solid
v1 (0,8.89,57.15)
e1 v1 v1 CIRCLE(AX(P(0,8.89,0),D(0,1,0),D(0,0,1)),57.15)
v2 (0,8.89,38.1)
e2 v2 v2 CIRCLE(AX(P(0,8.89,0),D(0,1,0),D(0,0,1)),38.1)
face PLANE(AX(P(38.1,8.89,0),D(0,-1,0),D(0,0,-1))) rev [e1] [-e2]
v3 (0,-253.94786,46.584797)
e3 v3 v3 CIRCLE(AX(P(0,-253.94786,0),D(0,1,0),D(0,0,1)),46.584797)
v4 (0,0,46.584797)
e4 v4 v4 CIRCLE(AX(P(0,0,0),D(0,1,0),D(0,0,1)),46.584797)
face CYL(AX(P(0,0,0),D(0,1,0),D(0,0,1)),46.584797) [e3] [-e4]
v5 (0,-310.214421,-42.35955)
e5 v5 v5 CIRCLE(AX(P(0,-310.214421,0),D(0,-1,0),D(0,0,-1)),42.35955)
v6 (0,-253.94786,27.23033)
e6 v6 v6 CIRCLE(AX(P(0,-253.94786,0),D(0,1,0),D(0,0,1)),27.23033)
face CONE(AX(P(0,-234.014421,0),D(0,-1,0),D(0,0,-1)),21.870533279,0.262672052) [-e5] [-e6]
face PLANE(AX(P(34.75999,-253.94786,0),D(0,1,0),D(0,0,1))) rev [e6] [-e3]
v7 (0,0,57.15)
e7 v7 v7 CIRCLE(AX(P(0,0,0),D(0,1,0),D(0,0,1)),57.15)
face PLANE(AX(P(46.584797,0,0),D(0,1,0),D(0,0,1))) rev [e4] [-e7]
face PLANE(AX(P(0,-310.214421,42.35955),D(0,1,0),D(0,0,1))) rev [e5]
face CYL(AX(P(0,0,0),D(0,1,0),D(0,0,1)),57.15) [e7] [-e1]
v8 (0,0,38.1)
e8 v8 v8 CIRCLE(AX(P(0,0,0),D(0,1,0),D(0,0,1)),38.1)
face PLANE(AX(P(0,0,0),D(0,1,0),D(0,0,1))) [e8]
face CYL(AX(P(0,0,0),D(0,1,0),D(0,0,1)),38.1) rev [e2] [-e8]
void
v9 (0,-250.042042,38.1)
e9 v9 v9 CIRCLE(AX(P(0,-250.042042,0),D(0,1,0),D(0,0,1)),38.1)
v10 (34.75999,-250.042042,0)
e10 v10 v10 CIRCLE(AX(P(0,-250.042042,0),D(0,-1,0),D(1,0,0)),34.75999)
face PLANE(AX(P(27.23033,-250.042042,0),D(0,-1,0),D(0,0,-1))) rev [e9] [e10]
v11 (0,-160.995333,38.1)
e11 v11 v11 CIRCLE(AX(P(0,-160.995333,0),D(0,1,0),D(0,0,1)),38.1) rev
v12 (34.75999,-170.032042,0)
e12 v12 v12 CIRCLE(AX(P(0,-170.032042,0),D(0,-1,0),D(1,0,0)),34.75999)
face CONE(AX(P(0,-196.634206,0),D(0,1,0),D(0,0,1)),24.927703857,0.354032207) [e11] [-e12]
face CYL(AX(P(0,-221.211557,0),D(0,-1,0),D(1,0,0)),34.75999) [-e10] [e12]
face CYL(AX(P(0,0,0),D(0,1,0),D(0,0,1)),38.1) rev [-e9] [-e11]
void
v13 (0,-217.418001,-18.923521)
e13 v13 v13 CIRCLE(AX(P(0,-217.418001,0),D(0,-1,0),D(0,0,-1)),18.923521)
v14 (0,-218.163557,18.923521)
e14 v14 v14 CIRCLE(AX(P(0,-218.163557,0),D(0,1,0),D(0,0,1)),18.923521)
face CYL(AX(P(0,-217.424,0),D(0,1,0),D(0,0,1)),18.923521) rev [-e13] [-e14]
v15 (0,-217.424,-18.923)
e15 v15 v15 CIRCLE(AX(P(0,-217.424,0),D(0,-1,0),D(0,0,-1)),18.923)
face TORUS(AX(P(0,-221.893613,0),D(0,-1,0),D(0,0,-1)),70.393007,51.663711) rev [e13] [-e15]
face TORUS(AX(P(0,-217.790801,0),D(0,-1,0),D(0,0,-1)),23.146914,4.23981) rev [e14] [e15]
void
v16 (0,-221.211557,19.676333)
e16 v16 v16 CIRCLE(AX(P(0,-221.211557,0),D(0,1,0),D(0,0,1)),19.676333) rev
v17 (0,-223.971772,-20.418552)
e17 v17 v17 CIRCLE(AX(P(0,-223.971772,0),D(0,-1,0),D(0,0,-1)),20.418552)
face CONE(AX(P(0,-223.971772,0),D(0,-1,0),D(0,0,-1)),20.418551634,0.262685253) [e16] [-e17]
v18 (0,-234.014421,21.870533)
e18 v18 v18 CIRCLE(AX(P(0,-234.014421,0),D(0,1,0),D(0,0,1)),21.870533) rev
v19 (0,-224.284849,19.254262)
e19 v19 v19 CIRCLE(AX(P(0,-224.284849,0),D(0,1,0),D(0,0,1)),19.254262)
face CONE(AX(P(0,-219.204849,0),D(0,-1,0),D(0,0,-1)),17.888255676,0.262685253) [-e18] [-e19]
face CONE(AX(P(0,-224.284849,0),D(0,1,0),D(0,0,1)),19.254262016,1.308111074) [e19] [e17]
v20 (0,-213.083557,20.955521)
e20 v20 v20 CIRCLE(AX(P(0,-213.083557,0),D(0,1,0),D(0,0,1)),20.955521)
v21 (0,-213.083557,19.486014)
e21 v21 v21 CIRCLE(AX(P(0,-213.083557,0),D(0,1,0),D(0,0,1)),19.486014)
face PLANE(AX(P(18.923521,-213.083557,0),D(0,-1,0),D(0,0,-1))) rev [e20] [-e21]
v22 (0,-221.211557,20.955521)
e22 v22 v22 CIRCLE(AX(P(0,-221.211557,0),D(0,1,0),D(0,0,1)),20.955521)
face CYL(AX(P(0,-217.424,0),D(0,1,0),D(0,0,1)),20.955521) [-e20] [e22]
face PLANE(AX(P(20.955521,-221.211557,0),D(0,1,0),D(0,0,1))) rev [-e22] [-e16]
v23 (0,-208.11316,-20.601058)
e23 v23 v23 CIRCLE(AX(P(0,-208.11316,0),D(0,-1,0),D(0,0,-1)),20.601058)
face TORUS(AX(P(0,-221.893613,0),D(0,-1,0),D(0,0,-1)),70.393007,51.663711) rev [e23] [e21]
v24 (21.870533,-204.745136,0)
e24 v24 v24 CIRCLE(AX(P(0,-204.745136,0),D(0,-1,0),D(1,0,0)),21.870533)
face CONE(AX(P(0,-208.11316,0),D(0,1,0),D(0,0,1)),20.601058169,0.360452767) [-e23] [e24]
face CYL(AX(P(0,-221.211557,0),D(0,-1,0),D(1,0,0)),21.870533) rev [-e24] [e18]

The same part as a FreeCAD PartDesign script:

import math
import FreeCAD as App
import Part
import Sketcher

V = App.Vector
Q = App.Units.Quantity

doc = App.newDocument("Part")
body = doc.addObject("PartDesign::Body", "Body")

sketch1 = doc.addObject("Sketcher::SketchObject", "Sketch")
body.addObject(sketch1)
sketch1.AttachmentSupport = (doc.XY_Plane, [""])
sketch1.MapMode = "FlatFace"
sketch1.addGeometry(Part.LineSegment(V(0, 0, 0), V(-38.1, 0, 0)), False)
sketch1.addGeometry(Part.LineSegment(V(-38.1, 0, 0), V(-38.1, -157.3, 0)), False)
sketch1.addGeometry(Part.LineSegment(V(-38.1, -157.3, 0), V(-19.3, -208.1, 0)), False)
sketch1.addGeometry(Part.ArcOfCircle(Part.Circle(V(-44.7, -217.5, 0), V(0, 0, 1), 27.1), math.radians(0), math.radians(20)), False)
sketch1.addGeometry(Part.ArcOfCircle(Part.Circle(V(-24.4, -217.4, 0), V(0, 0, 1), 6.7), math.radians(-15.2), math.radians(0.15)), False)
sketch1.addGeometry(Part.LineSegment(V(-17.9, -219.2, 0), V(-41.7, -307.6, 0)), False)
sketch1.addGeometry(Part.LineSegment(V(-41.7, -307.6, 0), V(0, -307.6, 0)), False)
sketch1.addGeometry(Part.LineSegment(V(0, -307.6, 0), V(0, 0, 0)), False)
sketch1.addConstraint(Sketcher.Constraint("Coincident", 0, 2, 1, 1))
sketch1.addConstraint(Sketcher.Constraint("Coincident", 1, 2, 2, 1))
sketch1.addConstraint(Sketcher.Constraint("Tangent", 2, 2, 3, 2))
sketch1.addConstraint(Sketcher.Constraint("Tangent", 3, 1, 4, 2))
sketch1.addConstraint(Sketcher.Constraint("Coincident", 4, 1, 5, 1))
sketch1.addConstraint(Sketcher.Constraint("Coincident", 5, 2, 6, 1))
sketch1.addConstraint(Sketcher.Constraint("Coincident", 6, 2, 7, 1))
sketch1.addConstraint(Sketcher.Constraint("Coincident", 7, 2, 0, 1))
sketch1.addConstraint(Sketcher.Constraint("Horizontal", 0))
sketch1.addConstraint(Sketcher.Constraint("Vertical", 1))
sketch1.addConstraint(Sketcher.Constraint("Horizontal", 6))
sketch1.addConstraint(Sketcher.Constraint("Vertical", 7))
sketch1.addConstraint(Sketcher.Constraint("Coincident", 7, 2, -1, 1))
sketch1.addConstraint(Sketcher.Constraint("DistanceX", 0, 2, 0, 1, Q("1.5 in")))
sketch1.addConstraint(Sketcher.Constraint("DistanceX", 6, 1, 6, 2, Q("1.64 in")))
sketch1.addConstraint(Sketcher.Constraint("DistanceY", 7, 1, 7, 2, Q("12.11 in")))
sketch1.addConstraint(Sketcher.Constraint("DistanceY", 3, 1, -1, 1, Q("8.56 in")))
sketch1.addConstraint(Sketcher.Constraint("DistanceX", 3, 1, -1, 1, Q("0.695 in")))
sketch1.addConstraint(Sketcher.Constraint("Radius", 3, 27.059259))
sketch1.addConstraint(Sketcher.Constraint("Radius", 4, 6.726049))
sketch1.addConstraint(Sketcher.Constraint("DistanceY", 1, 2, 1, 1, 157.332042))
sketch1.addConstraint(Sketcher.Constraint("DistanceY", 3, 3, -1, 1, 217.494138))
sketch1.addConstraint(Sketcher.Constraint("DistanceY", 4, 1, -1, 1, 219.204849))
revolution = doc.addObject("PartDesign::Revolution", "Revolution")
body.addObject(revolution)
revolution.Profile = sketch1
revolution.ReferenceAxis = (sketch1, ["V_Axis"])
revolution.Angle = 360

sketch2 = doc.addObject("Sketcher::SketchObject", "Sketch001")
body.addObject(sketch2)
sketch2.AttachmentSupport = (doc.XY_Plane, [""])
sketch2.MapMode = "FlatFace"
sketch2.addGeometry(Part.ArcOfCircle(Part.Circle(V(23.1, -217.8, 0), V(0, 0, 1), 4.2), math.radians(175), math.radians(195)), False)
sketch2.addGeometry(Part.ArcOfCircle(Part.Circle(V(70.4, -221.9, 0), V(0, 0, 1), 51.7), math.radians(164.53), math.radians(175.04)), False)
sketch2.addGeometry(Part.LineSegment(V(20.6, -208.1, 0), V(24.9, -196.6, 0)), False)
sketch2.addGeometry(Part.LineSegment(V(24.9, -196.6, 0), V(39.5, -157.3, 0)), False)
sketch2.addGeometry(Part.LineSegment(V(39.5, -157.3, 0), V(39.5, -132, 0)), False)
sketch2.addGeometry(Part.LineSegment(V(39.5, -132, 0), V(38, -132, 0)), False)
sketch2.addGeometry(Part.LineSegment(V(38, -132, 0), V(38.1, -157.3, 0)), False)
sketch2.addGeometry(Part.LineSegment(V(38.1, -157.3, 0), V(23.7, -196.2, 0)), False)
sketch2.addGeometry(Part.LineSegment(V(23.7, -196.2, 0), V(19.3, -208.1, 0)), False)
sketch2.addGeometry(Part.ArcOfCircle(Part.Circle(V(44.7, -217.5, 0), V(0, 0, 1), 27.1), math.radians(160), math.radians(180)), False)
sketch2.addGeometry(Part.ArcOfCircle(Part.Circle(V(24.4, -217.4, 0), V(0, 0, 1), 6.7), math.radians(179.85), math.radians(195.2)), False)
sketch2.addGeometry(Part.LineSegment(V(17.9, -219.2, 0), V(19.3, -224.3, 0)), False)
sketch2.addGeometry(Part.LineSegment(V(19.3, -224.3, 0), V(20.4, -224, 0)), False)
sketch2.addGeometry(Part.LineSegment(V(20.4, -224, 0), V(19.1, -218.9, 0)), False)
sketch2.addConstraint(Sketcher.Constraint("Tangent", 0, 1, 1, 2))
sketch2.addConstraint(Sketcher.Constraint("Coincident", 1, 1, 2, 1))
sketch2.addConstraint(Sketcher.Constraint("Coincident", 2, 2, 3, 1))
sketch2.addConstraint(Sketcher.Constraint("Coincident", 3, 2, 4, 1))
sketch2.addConstraint(Sketcher.Constraint("Coincident", 4, 2, 5, 1))
sketch2.addConstraint(Sketcher.Constraint("Coincident", 5, 2, 6, 1))
sketch2.addConstraint(Sketcher.Constraint("Coincident", 6, 2, 7, 1))
sketch2.addConstraint(Sketcher.Constraint("Coincident", 7, 2, 8, 1))
sketch2.addConstraint(Sketcher.Constraint("Tangent", 8, 2, 9, 1))
sketch2.addConstraint(Sketcher.Constraint("Tangent", 9, 2, 10, 1))
sketch2.addConstraint(Sketcher.Constraint("Coincident", 10, 2, 11, 1))
sketch2.addConstraint(Sketcher.Constraint("Coincident", 11, 2, 12, 1))
sketch2.addConstraint(Sketcher.Constraint("Coincident", 12, 2, 13, 1))
sketch2.addConstraint(Sketcher.Constraint("Tangent", 13, 2, 0, 2))
sketch2.addConstraint(Sketcher.Constraint("Vertical", 4))
sketch2.addConstraint(Sketcher.Constraint("Horizontal", 5))
sketch2.addConstraint(Sketcher.Constraint("Parallel", 3, 7))
sketch2.addConstraint(Sketcher.Constraint("Parallel", 7, 8))
sketch2.addConstraint(Sketcher.Constraint("Perpendicular", 11, 12))
sketch2.addConstraint(Sketcher.Constraint("Perpendicular", 12, 13))
sketch2.addConstraint(Sketcher.Constraint("Horizontal", 3, 2, 6, 2))
sketch2.addConstraint(Sketcher.Constraint("Horizontal", 1, 1, 8, 2))
sketch2.addConstraint(Sketcher.Constraint("Horizontal", 0, 1, 9, 2))
sketch2.addConstraint(Sketcher.Constraint("Equal", 11, 13))
sketch2.addConstraint(Sketcher.Constraint("DistanceX", -1, 1, 6, 2, Q("1.5 in")))
sketch2.addConstraint(Sketcher.Constraint("DistanceY", 11, 2, 10, 2, Q("0.2 in")))
sketch2.addConstraint(Sketcher.Constraint("DistanceY", 0, 1, -1, 1, Q("8.56 in")))
sketch2.addConstraint(Sketcher.Constraint("DistanceX", 8, 2, 1, 1, Q("0.05 in")))
sketch2.addConstraint(Sketcher.Constraint("DistanceX", 9, 2, 0, 1, Q("0.05 in")))
sketch2.addConstraint(Sketcher.Constraint("DistanceX", -1, 1, 0, 1, Q("0.745 in")))
sketch2.addConstraint(Sketcher.Constraint("Radius", 0, 4.23981))
sketch2.addConstraint(Sketcher.Constraint("Radius", 1, 51.663711))
sketch2.addConstraint(Sketcher.Constraint("Radius", 9, 27.059259))
sketch2.addConstraint(Sketcher.Constraint("Radius", 10, 6.726049))
sketch2.addConstraint(Sketcher.Constraint("DistanceX", 5, 2, 5, 1, 1.469391))
sketch2.addConstraint(Sketcher.Constraint("DistanceY", 4, 1, 4, 2, 25.328308))
sketch2.addConstraint(Sketcher.Constraint("DistanceY", 0, 3, -1, 1, 217.790801))
sketch2.addConstraint(Sketcher.Constraint("DistanceX", 3, 2, 9, 3, 5.258198))
sketch2.addConstraint(Sketcher.Constraint("DistanceY", 10, 3, 4, 2, 85.437701))
sketch2.addConstraint(Sketcher.Constraint("Distance", 7, 41.431348))
sketch2.addConstraint(Sketcher.Constraint("DistanceY", 10, 2, -1, 1, 219.204849))
sketch2.addConstraint(Sketcher.Constraint("DistanceY", 10, 3, 2, 2, 20.807228))
revolution2 = doc.addObject("PartDesign::Revolution", "Revolution001")
body.addObject(revolution2)
revolution2.Profile = sketch2
revolution2.ReferenceAxis = (sketch2, ["V_Axis"])
revolution2.Angle = 360

sketch3 = doc.addObject("Sketcher::SketchObject", "Sketch002")
body.addObject(sketch3)
sketch3.AttachmentSupport = (doc.XY_Plane, [""])
sketch3.MapMode = "FlatFace"
sketch3.addGeometry(Part.LineSegment(V(18.9, -213.1, 0), V(18.9, -221.2, 0)), False)
sketch3.addGeometry(Part.LineSegment(V(18.9, -221.2, 0), V(21, -221.2, 0)), False)
sketch3.addGeometry(Part.LineSegment(V(21, -221.2, 0), V(21, -213.1, 0)), False)
sketch3.addGeometry(Part.LineSegment(V(21, -213.1, 0), V(18.9, -213.1, 0)), False)
sketch3.addConstraint(Sketcher.Constraint("Coincident", 0, 2, 1, 1))
sketch3.addConstraint(Sketcher.Constraint("Coincident", 1, 2, 2, 1))
sketch3.addConstraint(Sketcher.Constraint("Coincident", 2, 2, 3, 1))
sketch3.addConstraint(Sketcher.Constraint("Coincident", 3, 2, 0, 1))
sketch3.addConstraint(Sketcher.Constraint("Vertical", 0))
sketch3.addConstraint(Sketcher.Constraint("Horizontal", 1))
sketch3.addConstraint(Sketcher.Constraint("Vertical", 2))
sketch3.addConstraint(Sketcher.Constraint("Horizontal", 3))
sketch3.addConstraint(Sketcher.Constraint("DistanceX", 1, 1, 1, 2, Q("0.08 in")))
sketch3.addConstraint(Sketcher.Constraint("DistanceY", 0, 2, 0, 1, Q("0.32 in")))
sketch3.addConstraint(Sketcher.Constraint("DistanceX", -1, 1, 0, 2, 18.923521))
sketch3.addConstraint(Sketcher.Constraint("DistanceY", 0, 2, -1, 1, 221.211557))
revolution3 = doc.addObject("PartDesign::Revolution", "Revolution002")
body.addObject(revolution3)
revolution3.Profile = sketch3
revolution3.ReferenceAxis = (sketch3, ["V_Axis"])
revolution3.Angle = 360

sketch4 = doc.addObject("Sketcher::SketchObject", "Sketch003")
body.addObject(sketch4)
sketch4.AttachmentSupport = (doc.XY_Plane, [""])
sketch4.MapMode = "FlatFace"
sketch4.addGeometry(Part.LineSegment(V(42, -308, 0), V(22, -234, 0)), False)
sketch4.addGeometry(Part.LineSegment(V(22, -234, 0), V(-22, -234, 0)), False)
sketch4.addGeometry(Part.LineSegment(V(-22, -234, 0), V(-42, -308, 0)), False)
sketch4.addGeometry(Part.LineSegment(V(-42, -308, 0), V(42, -308, 0)), False)
sketch4.addConstraint(Sketcher.Constraint("Coincident", 0, 2, 1, 1))
sketch4.addConstraint(Sketcher.Constraint("Coincident", 1, 2, 2, 1))
sketch4.addConstraint(Sketcher.Constraint("Coincident", 2, 2, 3, 1))
sketch4.addConstraint(Sketcher.Constraint("Coincident", 3, 2, 0, 1))
sketch4.addConstraint(Sketcher.Constraint("Horizontal", 1))
sketch4.addConstraint(Sketcher.Constraint("Horizontal", 3))
sketch4.addConstraint(Sketcher.Constraint("Equal", 0, 2))
sketch4.addConstraint(Sketcher.Constraint("DistanceX", 3, 1, 3, 2, Q("3.28 in")))
sketch4.addConstraint(Sketcher.Constraint("DistanceX", 2, 2, -1, 1, Q("1.64 in")))
sketch4.addConstraint(Sketcher.Constraint("DistanceY", 2, 2, -1, 1, Q("12.11 in")))
sketch4.addConstraint(Sketcher.Constraint("Distance", 0, 76.193301))
sketch4.addConstraint(Sketcher.Constraint("DistanceX", 1, 2, 1, 1, 43.741067))
pocket1 = doc.addObject("PartDesign::Pocket", "Pocket")
body.addObject(pocket1)
pocket1.Profile = sketch4
pocket1.Type = "ThroughAll"
pocket1.Midplane = True

sketch5 = doc.addObject("Sketcher::SketchObject", "Sketch004")
body.addObject(sketch5)
sketch5.AttachmentSupport = (doc.YZ_Plane, [""])
sketch5.MapMode = "FlatFace"
sketch5.addGeometry(Part.LineSegment(V(-234, 22, 0), V(-310, 42, 0)), False)
sketch5.addGeometry(Part.LineSegment(V(-310, 42, 0), V(-310, 0, 0)), False)
sketch5.addGeometry(Part.LineSegment(V(-310, 0, 0), V(-234, 0, 0)), False)
sketch5.addGeometry(Part.LineSegment(V(-234, 0, 0), V(-234, 22, 0)), False)
sketch5.addConstraint(Sketcher.Constraint("Coincident", 0, 2, 1, 1))
sketch5.addConstraint(Sketcher.Constraint("Coincident", 1, 2, 2, 1))
sketch5.addConstraint(Sketcher.Constraint("Coincident", 2, 2, 3, 1))
sketch5.addConstraint(Sketcher.Constraint("Coincident", 3, 2, 0, 1))
sketch5.addConstraint(Sketcher.Constraint("Vertical", 1))
sketch5.addConstraint(Sketcher.Constraint("Horizontal", 2))
sketch5.addConstraint(Sketcher.Constraint("Vertical", 3))
sketch5.addConstraint(Sketcher.Constraint("PointOnObject", 1, 2, -1))
sketch5.addConstraint(Sketcher.Constraint("DistanceX", 2, 1, 2, 2, Q("3 in")))
sketch5.addConstraint(Sketcher.Constraint("Angle", 0, Q("164.95 deg")))
sketch5.addConstraint(Sketcher.Constraint("DistanceY", 1, 2, 1, 1, 42.35955))
sketch5.addConstraint(Sketcher.Constraint("DistanceX", 0, 2, -1, 1, 310.214421))
revolution4 = doc.addObject("PartDesign::Revolution", "Revolution003")
body.addObject(revolution4)
revolution4.Profile = sketch5
revolution4.ReferenceAxis = (sketch5, ["H_Axis"])
revolution4.Angle = 360

sketch6 = doc.addObject("Sketcher::SketchObject", "Sketch005")
body.addObject(sketch6)
sketch6.AttachmentSupport = (doc.XY_Plane, [""])
sketch6.MapMode = "FlatFace"
sketch6.addGeometry(Part.LineSegment(V(35, -170, 0), V(22, -205, 0)), False)
sketch6.addGeometry(Part.LineSegment(V(22, -205, 0), V(22, -234, 0)), False)
sketch6.addGeometry(Part.LineSegment(V(22, -234, 0), V(26, -250, 0)), False)
sketch6.addGeometry(Part.LineSegment(V(26, -250, 0), V(35, -250, 0)), False)
sketch6.addGeometry(Part.LineSegment(V(35, -250, 0), V(35, -170, 0)), False)
sketch6.addConstraint(Sketcher.Constraint("Coincident", 0, 2, 1, 1))
sketch6.addConstraint(Sketcher.Constraint("Coincident", 1, 2, 2, 1))
sketch6.addConstraint(Sketcher.Constraint("Coincident", 2, 2, 3, 1))
sketch6.addConstraint(Sketcher.Constraint("Coincident", 3, 2, 4, 1))
sketch6.addConstraint(Sketcher.Constraint("Coincident", 4, 2, 0, 1))
sketch6.addConstraint(Sketcher.Constraint("Vertical", 1))
sketch6.addConstraint(Sketcher.Constraint("Horizontal", 3))
sketch6.addConstraint(Sketcher.Constraint("Vertical", 4))
sketch6.addConstraint(Sketcher.Constraint("DistanceY", 4, 1, 4, 2, Q("3.15 in")))
sketch6.addConstraint(Sketcher.Constraint("Angle", 2, Q("-74.95 deg")))
sketch6.addConstraint(Sketcher.Constraint("Distance", 2, 16.596901))
sketch6.addConstraint(Sketcher.Constraint("DistanceX", 3, 1, 3, 2, 8.579874))
sketch6.addConstraint(Sketcher.Constraint("DistanceY", 1, 2, 1, 1, 29.269285))
sketch6.addConstraint(Sketcher.Constraint("DistanceY", 1, 2, -1, 1, 234.014421))
sketch6.addConstraint(Sketcher.Constraint("DistanceX", -1, 1, 3, 2, 34.75999))
revolution5 = doc.addObject("PartDesign::Revolution", "Revolution004")
body.addObject(revolution5)
revolution5.Profile = sketch6
revolution5.ReferenceAxis = (sketch6, ["V_Axis"])
revolution5.Angle = 360

sketch7 = doc.addObject("Sketcher::SketchObject", "Sketch006")
body.addObject(sketch7)
sketch7.AttachmentSupport = (doc.XY_Plane, [""])
sketch7.MapMode = "FlatFace"
sketch7.addGeometry(Part.LineSegment(V(25.3, -253.9, 0), V(46.6, -253.9, 0)), False)
sketch7.addGeometry(Part.LineSegment(V(46.6, -253.9, 0), V(46.6, 0, 0)), False)
sketch7.addGeometry(Part.LineSegment(V(46.6, 0, 0), V(57.1, 0, 0)), False)
sketch7.addGeometry(Part.LineSegment(V(57.1, 0, 0), V(57.1, 8.9, 0)), False)
sketch7.addGeometry(Part.LineSegment(V(57.1, 8.9, 0), V(38.1, 8.9, 0)), False)
sketch7.addGeometry(Part.LineSegment(V(38.1, 8.9, 0), V(38.1, -250, 0)), False)
sketch7.addGeometry(Part.LineSegment(V(38.1, -250, 0), V(25.3, -250, 0)), False)
sketch7.addGeometry(Part.LineSegment(V(25.3, -250, 0), V(25.3, -253.9, 0)), False)
sketch7.addConstraint(Sketcher.Constraint("Coincident", 0, 2, 1, 1))
sketch7.addConstraint(Sketcher.Constraint("Coincident", 1, 2, 2, 1))
sketch7.addConstraint(Sketcher.Constraint("Coincident", 2, 2, 3, 1))
sketch7.addConstraint(Sketcher.Constraint("Coincident", 3, 2, 4, 1))
sketch7.addConstraint(Sketcher.Constraint("Coincident", 4, 2, 5, 1))
sketch7.addConstraint(Sketcher.Constraint("Coincident", 5, 2, 6, 1))
sketch7.addConstraint(Sketcher.Constraint("Coincident", 6, 2, 7, 1))
sketch7.addConstraint(Sketcher.Constraint("Coincident", 7, 2, 0, 1))
sketch7.addConstraint(Sketcher.Constraint("Horizontal", 0))
sketch7.addConstraint(Sketcher.Constraint("Vertical", 1))
sketch7.addConstraint(Sketcher.Constraint("Horizontal", 2))
sketch7.addConstraint(Sketcher.Constraint("Vertical", 3))
sketch7.addConstraint(Sketcher.Constraint("Horizontal", 4))
sketch7.addConstraint(Sketcher.Constraint("Vertical", 5))
sketch7.addConstraint(Sketcher.Constraint("Horizontal", 6))
sketch7.addConstraint(Sketcher.Constraint("Vertical", 7))
sketch7.addConstraint(Sketcher.Constraint("PointOnObject", 1, 2, -1))
sketch7.addConstraint(Sketcher.Constraint("DistanceX", 4, 2, 4, 1, Q("0.75 in")))
sketch7.addConstraint(Sketcher.Constraint("DistanceY", 3, 1, 3, 2, Q("0.35 in")))
sketch7.addConstraint(Sketcher.Constraint("DistanceX", -1, 1, 4, 2, Q("1.5 in")))
sketch7.addConstraint(Sketcher.Constraint("DistanceY", 1, 1, 1, 2, 253.94786))
sketch7.addConstraint(Sketcher.Constraint("DistanceY", 5, 2, 5, 1, 258.932042))
sketch7.addConstraint(Sketcher.Constraint("DistanceX", 0, 1, 0, 2, 21.302142))
sketch7.addConstraint(Sketcher.Constraint("DistanceX", 2, 1, 2, 2, 10.565203))
revolution6 = doc.addObject("PartDesign::Revolution", "Revolution005")
body.addObject(revolution6)
revolution6.Profile = sketch7
revolution6.ReferenceAxis = (sketch7, ["V_Axis"])
revolution6.Angle = 360

doc.recompute()
